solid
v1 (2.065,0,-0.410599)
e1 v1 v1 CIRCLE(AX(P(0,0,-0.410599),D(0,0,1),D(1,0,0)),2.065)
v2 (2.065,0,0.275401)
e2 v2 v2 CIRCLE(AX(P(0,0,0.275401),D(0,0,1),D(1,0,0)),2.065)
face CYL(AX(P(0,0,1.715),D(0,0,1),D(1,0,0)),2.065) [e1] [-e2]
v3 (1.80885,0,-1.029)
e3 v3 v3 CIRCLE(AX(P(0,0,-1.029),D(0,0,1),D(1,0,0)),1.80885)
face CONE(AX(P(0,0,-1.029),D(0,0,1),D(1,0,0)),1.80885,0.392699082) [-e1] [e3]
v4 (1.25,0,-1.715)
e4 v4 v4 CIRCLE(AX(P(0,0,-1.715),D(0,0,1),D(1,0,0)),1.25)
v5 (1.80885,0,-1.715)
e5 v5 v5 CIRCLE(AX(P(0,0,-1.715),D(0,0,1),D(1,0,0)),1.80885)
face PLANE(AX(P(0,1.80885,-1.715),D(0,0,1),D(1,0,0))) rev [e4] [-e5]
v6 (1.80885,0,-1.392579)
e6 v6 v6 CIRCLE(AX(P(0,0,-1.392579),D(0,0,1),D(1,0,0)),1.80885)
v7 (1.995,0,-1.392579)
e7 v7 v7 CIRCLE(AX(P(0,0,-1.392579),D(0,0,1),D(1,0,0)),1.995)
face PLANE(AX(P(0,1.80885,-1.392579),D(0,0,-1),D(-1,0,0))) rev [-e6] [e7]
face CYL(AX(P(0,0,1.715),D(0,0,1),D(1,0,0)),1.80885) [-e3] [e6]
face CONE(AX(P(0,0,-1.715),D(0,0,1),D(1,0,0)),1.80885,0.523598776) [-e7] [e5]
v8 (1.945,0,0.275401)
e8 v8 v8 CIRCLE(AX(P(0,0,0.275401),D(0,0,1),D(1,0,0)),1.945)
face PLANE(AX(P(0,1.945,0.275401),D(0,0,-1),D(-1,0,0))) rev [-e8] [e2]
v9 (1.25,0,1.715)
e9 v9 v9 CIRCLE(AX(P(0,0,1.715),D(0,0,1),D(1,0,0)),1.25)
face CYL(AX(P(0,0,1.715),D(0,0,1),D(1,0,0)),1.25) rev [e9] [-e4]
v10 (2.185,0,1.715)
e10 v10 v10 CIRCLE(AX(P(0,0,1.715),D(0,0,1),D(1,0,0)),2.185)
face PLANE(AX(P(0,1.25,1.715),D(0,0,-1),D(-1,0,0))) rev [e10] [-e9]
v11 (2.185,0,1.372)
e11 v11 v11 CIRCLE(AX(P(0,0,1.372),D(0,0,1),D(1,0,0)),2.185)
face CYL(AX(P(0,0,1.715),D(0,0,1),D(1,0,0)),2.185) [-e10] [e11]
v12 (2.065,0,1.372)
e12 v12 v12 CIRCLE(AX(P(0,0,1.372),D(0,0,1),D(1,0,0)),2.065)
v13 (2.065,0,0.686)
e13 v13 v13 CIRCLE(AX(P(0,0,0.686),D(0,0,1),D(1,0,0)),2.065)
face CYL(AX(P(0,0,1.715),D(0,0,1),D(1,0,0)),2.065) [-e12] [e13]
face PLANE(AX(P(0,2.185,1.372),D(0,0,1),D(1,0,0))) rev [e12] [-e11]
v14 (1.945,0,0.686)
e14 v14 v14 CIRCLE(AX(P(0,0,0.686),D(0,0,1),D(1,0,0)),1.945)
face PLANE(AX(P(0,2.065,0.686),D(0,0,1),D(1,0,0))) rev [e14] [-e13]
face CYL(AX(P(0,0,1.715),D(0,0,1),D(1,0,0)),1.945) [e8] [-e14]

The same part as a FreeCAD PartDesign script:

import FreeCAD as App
import Part
import Sketcher
from FreeCAD import Vector
Q = App.Units.Quantity


def add_polygon(sketch, points):
    """Adds a closed chain of lines whose ends are joined by coincident constraints."""
    first, n = sketch.GeometryCount, len(points)
    for a, b in zip(points, points[1:] + points[:1]):
        sketch.addGeometry(Part.LineSegment(App.Vector(*a, 0), App.Vector(*b, 0)), False)
    for i in range(n):
        sketch.addConstraint(Sketcher.Constraint("Coincident", first + i, 2, first + (i + 1) % n, 1))

doc = App.newDocument("Part")
body = doc.addObject("PartDesign::Body", "Body")

sketch1 = doc.addObject("Sketcher::SketchObject", "Sketch")
body.addObject(sketch1)
sketch1.AttachmentSupport = (doc.YZ_Plane, [""])
sketch1.MapMode = "FlatFace"
add_polygon(sketch1, [(2.19, 1.72), (1.25, 1.72), (1.25, -1.72), (1.81, -1.72), (2, -1.39), (1.81, -1.39), (1.81, -1.03), (2.06, -0.41), (2.06, 0.28), (1.95, 0.28), (1.95, 0.69), (2.06, 0.69), (2.06, 1.37), (2.19, 1.37)])
sketch1.addConstraint(Sketcher.Constraint("Horizontal", 0))
sketch1.addConstraint(Sketcher.Constraint("Vertical", 1))
sketch1.addConstraint(Sketcher.Constraint("Horizontal", 2))
sketch1.addConstraint(Sketcher.Constraint("Horizontal", 4))
sketch1.addConstraint(Sketcher.Constraint("Vertical", 5))
sketch1.addConstraint(Sketcher.Constraint("Vertical", 7))
sketch1.addConstraint(Sketcher.Constraint("Horizontal", 8))
sketch1.addConstraint(Sketcher.Constraint("Vertical", 9))
sketch1.addConstraint(Sketcher.Constraint("Horizontal", 10))
sketch1.addConstraint(Sketcher.Constraint("Vertical", 11))
sketch1.addConstraint(Sketcher.Constraint("Horizontal", 12))
sketch1.addConstraint(Sketcher.Constraint("Vertical", 13))
sketch1.addConstraint(Sketcher.Constraint("Vertical", 2, 2, 4, 2))
sketch1.addConstraint(Sketcher.Constraint("Vertical", 7, 2, 10, 2))
sketch1.addConstraint(Sketcher.Constraint("Equal", 10, 12))
sketch1.addConstraint(Sketcher.Constraint("Equal", 7, 11))
sketch1.addConstraint(Sketcher.Constraint("Angle", 3, Q("60 deg")))
sketch1.addConstraint(Sketcher.Constraint("Angle", 6, Q("67.5 deg")))
sketch1.addConstraint(Sketcher.Constraint("DistanceX", 8, 2, 8, 1, Q("0.12 mm")))
sketch1.addConstraint(Sketcher.Constraint("DistanceY", 1, 2, 1, 1, Q("3.43 mm")))
sketch1.addConstraint(Sketcher.Constraint("DistanceX", 0, 2, 0, 1, Q("0.935 mm")))
sketch1.addConstraint(Sketcher.Constraint("DistanceY", 7, 1, 7, 2, Q("0.686 mm")))
sketch1.addConstraint(Sketcher.Constraint("DistanceY", 13, 1, 13, 2, Q("0.343 mm")))
sketch1.addConstraint(Sketcher.Constraint("DistanceX", -1, 1, 0, 2, Q("1.25 mm")))
sketch1.addConstraint(Sketcher.Constraint("DistanceX", 3, 2, 6, 2, Q("0.07 mm")))
sketch1.addConstraint(Sketcher.Constraint("DistanceY", 9, 1, 9, 2, Q("0.410599 mm")))
sketch1.addConstraint(Sketcher.Constraint("DistanceY", -1, 1, 0, 2, Q("1.715 mm")))
sketch1.addConstraint(Sketcher.Constraint("DistanceY", 5, 2, -1, 1, Q("1.029 mm")))
revolution = doc.addObject("PartDesign::Revolution", "Revolution")
body.addObject(revolution)
revolution.Profile = sketch1
revolution.ReferenceAxis = (sketch1, ["V_Axis"])
revolution.Angle = 360

doc.recompute()
